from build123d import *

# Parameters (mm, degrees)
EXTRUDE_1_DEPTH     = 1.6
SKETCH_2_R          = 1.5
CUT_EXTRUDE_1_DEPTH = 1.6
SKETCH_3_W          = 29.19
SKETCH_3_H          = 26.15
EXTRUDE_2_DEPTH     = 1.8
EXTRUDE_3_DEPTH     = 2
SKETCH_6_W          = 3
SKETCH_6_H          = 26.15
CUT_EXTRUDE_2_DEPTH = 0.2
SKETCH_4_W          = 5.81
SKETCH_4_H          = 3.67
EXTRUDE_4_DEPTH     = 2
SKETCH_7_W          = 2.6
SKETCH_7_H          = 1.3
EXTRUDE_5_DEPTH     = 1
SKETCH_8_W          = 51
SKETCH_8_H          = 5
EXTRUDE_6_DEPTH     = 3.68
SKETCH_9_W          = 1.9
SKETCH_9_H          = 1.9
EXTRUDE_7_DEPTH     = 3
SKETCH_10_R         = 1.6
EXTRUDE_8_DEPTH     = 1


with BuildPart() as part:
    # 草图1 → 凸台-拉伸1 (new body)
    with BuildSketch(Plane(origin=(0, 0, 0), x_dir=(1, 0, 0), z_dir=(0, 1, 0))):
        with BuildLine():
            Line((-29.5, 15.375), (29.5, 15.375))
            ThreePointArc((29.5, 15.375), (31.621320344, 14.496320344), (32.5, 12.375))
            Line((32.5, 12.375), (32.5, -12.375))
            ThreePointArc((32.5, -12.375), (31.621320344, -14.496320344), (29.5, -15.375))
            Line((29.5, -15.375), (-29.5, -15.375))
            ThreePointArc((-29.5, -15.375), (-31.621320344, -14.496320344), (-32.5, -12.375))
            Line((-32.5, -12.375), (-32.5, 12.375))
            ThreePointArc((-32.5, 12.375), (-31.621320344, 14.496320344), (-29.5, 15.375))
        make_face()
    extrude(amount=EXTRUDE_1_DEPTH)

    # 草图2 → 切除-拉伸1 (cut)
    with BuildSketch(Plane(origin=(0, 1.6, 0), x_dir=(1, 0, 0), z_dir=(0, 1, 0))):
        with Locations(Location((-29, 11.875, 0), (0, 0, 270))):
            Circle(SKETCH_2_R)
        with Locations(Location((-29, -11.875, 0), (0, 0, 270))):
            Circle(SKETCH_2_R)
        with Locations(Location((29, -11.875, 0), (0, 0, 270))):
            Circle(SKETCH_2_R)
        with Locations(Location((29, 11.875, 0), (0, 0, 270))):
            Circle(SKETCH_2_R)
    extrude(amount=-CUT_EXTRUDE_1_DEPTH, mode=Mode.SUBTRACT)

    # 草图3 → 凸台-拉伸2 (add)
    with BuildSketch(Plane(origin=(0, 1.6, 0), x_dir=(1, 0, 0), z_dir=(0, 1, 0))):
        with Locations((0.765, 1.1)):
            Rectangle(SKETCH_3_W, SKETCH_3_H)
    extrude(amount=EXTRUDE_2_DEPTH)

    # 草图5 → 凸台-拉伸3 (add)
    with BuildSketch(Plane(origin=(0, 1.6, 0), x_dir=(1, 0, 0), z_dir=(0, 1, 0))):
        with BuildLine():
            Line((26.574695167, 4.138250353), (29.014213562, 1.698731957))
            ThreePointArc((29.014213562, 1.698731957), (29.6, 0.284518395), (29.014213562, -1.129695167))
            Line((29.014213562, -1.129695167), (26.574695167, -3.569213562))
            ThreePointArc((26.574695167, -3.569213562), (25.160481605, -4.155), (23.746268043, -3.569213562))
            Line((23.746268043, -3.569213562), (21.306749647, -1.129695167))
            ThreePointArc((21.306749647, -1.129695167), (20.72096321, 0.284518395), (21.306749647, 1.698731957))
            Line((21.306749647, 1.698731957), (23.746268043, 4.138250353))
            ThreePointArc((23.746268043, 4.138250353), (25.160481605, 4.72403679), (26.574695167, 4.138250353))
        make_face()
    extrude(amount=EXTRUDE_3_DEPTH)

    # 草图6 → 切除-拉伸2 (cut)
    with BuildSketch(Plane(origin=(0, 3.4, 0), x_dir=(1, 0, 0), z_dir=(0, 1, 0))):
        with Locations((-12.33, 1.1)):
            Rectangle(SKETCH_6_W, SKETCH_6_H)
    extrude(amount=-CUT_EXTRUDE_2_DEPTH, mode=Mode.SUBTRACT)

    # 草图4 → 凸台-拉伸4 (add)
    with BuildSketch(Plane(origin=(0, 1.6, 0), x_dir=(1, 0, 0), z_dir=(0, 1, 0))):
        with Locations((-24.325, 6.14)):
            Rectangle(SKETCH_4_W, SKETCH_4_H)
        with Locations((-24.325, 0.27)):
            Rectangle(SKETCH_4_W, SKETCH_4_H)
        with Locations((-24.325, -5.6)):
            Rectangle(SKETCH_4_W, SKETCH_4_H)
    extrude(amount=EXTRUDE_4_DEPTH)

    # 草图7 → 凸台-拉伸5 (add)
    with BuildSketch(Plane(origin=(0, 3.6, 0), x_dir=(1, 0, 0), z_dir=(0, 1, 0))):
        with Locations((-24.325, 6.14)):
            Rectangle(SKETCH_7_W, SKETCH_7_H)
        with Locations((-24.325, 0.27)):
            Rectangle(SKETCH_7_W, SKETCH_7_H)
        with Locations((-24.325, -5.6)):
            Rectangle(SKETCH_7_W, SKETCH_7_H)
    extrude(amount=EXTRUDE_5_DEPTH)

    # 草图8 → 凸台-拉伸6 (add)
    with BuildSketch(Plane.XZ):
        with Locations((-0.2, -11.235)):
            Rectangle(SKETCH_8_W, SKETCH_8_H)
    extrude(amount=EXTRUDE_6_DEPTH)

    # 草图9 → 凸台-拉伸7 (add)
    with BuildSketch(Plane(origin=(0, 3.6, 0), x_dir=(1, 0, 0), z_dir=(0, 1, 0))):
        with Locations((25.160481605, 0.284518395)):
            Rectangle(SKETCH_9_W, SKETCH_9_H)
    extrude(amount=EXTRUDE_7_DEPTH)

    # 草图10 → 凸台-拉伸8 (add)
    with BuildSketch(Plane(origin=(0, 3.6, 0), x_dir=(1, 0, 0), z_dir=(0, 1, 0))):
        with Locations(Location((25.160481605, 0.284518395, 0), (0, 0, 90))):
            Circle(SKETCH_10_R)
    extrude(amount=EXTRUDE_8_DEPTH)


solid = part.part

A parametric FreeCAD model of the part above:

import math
import FreeCAD as App
import Part
import Sketcher

doc = App.newDocument("Part")
params = doc.addObject("Spreadsheet::Sheet", "Params")
for row, (alias, value) in enumerate([
    ("sketch1_radius", "3 mm"),
    ("sketch1_width", "59 mm"),
    ("sketch1_height", "24.75 mm"),
    ("pad1_length", "1.6 mm"),
    ("sketch2_diameter", "3 mm"),
    ("pocket1_length", "1.6 mm"),
    ("sketch3_width", "29.19 mm"),
    ("sketch3_height", "26.15 mm"),
    ("pad2_length", "1.8 mm"),
    ("sketch4_radius", "2 mm"),
    ("sketch4_length", "3.45 mm"),
    ("pad3_length", "2 mm"),
    ("sketch5_width", "3 mm"),
    ("sketch5_height", "26.15 mm"),
    ("pocket2_length", "0.2 mm"),
    ("sketch6_width", "5.81 mm"),
    ("sketch6_height", "3.67 mm"),
    ("pad4_length", "2 mm"),
    ("sketch7_width", "2.6 mm"),
    ("sketch7_height", "1.3 mm"),
    ("pad5_length", "1 mm"),
    ("sketch8_width", "51 mm"),
    ("sketch8_height", "5 mm"),
    ("pad6_length", "3.68 mm"),
    ("sketch9_width", "1.9 mm"),
    ("pad7_length", "3 mm"),
    ("sketch10_diameter", "3.2 mm"),
    ("pad8_length", "1 mm"),
], start=1):
    params.set(f"A{row}", alias)
    params.set(f"B{row}", "=" + value)
    params.setAlias(f"B{row}", alias)

body = doc.addObject("PartDesign::Body", "Body")

# Sketch on XZ plane
sketch1 = body.newObject("Sketcher::SketchObject", "Sketch")
sketch1.AttachmentSupport = (doc.getObject("XZ_Plane"), [""])
sketch1.MapMode = "FlatFace"
sketch1.addGeometry([
    Part.LineSegment(App.Vector(29.5, -15.4, 0), App.Vector(-29.5, -15.4, 0)),  # 0
    Part.ArcOfCircle(Part.Circle(App.Vector(-29.5, -12.4, 0), App.Vector(0, 0, 1), 3), math.radians(180), math.radians(270)),  # 1
    Part.LineSegment(App.Vector(-32.5, -12.4, 0), App.Vector(-32.5, 12.4, 0)),  # 2
    Part.ArcOfCircle(Part.Circle(App.Vector(-29.5, 12.4, 0), App.Vector(0, 0, 1), 3), math.radians(90), math.radians(180)),  # 3
    Part.LineSegment(App.Vector(-29.5, 15.4, 0), App.Vector(29.5, 15.4, 0)),  # 4
    Part.ArcOfCircle(Part.Circle(App.Vector(29.5, 12.4, 0), App.Vector(0, 0, 1), 3), math.radians(0), math.radians(90)),  # 5
    Part.LineSegment(App.Vector(32.5, 12.4, 0), App.Vector(32.5, -12.4, 0)),  # 6
    Part.ArcOfCircle(Part.Circle(App.Vector(29.5, -12.4, 0), App.Vector(0, 0, 1), 3), math.radians(-90), math.radians(0)),  # 7
], False)
sketch1.addConstraint([
    Sketcher.Constraint("Tangent", 0, 2, 1, 2),
    Sketcher.Constraint("Tangent", 1, 1, 2, 1),
    Sketcher.Constraint("Tangent", 2, 2, 3, 2),
    Sketcher.Constraint("Tangent", 3, 1, 4, 1),
    Sketcher.Constraint("Tangent", 4, 2, 5, 2),
    Sketcher.Constraint("Tangent", 5, 1, 6, 1),
    Sketcher.Constraint("Tangent", 6, 2, 7, 2),
    Sketcher.Constraint("Tangent", 7, 1, 0, 1),
    Sketcher.Constraint("Horizontal", 0),
    Sketcher.Constraint("Vertical", 2),
    Sketcher.Constraint("Horizontal", 4),
    Sketcher.Constraint("Vertical", 6),
    Sketcher.Constraint("Equal", 1, 3),
    Sketcher.Constraint("Equal", 3, 5),
    Sketcher.Constraint("Equal", 5, 7),
    Sketcher.Constraint("Symmetric", 1, 3, 5, 3, -1, 1),
    Sketcher.Constraint("Radius", 1, 3.0),
    Sketcher.Constraint("DistanceX", 0, 2, 0, 1, 59.0),
    Sketcher.Constraint("DistanceY", 2, 1, 2, 2, 24.75),
])
sketch1.setExpression("Constraints[16]", "Params.sketch1_radius")
sketch1.setExpression("Constraints[17]", "Params.sketch1_width")
sketch1.setExpression("Constraints[18]", "Params.sketch1_height")
pad1 = body.newObject("PartDesign::Pad", "Pad")
pad1.Profile = sketch1
pad1.setExpression("Length", "Params.pad1_length")
pad1.Reversed = True

# Sketch on XZ plane
sketch2 = body.newObject("Sketcher::SketchObject", "Sketch001")
sketch2.AttachmentSupport = (doc.getObject("XZ_Plane"), [""])
sketch2.MapMode = "FlatFace"
sketch2.AttachmentOffset = App.Placement(App.Vector(0, 0, -1.6), App.Rotation())
sketch2.addGeometry([
    Part.Circle(App.Vector(-29, -11.9, 0), App.Vector(0, 0, 1), 1.5),
    Part.Circle(App.Vector(-29, 11.9, 0), App.Vector(0, 0, 1), 1.5),
    Part.Circle(App.Vector(29, 11.9, 0), App.Vector(0, 0, 1), 1.5),
    Part.Circle(App.Vector(29, -11.9, 0), App.Vector(0, 0, 1), 1.5),
], False)
sketch2.addConstraint([
    Sketcher.Constraint("Equal", 0, 1),
    Sketcher.Constraint("Equal", 1, 2),
    Sketcher.Constraint("Equal", 2, 3),
    Sketcher.Constraint("Symmetric", 0, 3, 2, 3, -1, 1),
    Sketcher.Constraint("Symmetric", 1, 3, 3, 3, -1, 1),
    Sketcher.Constraint("Symmetric", 1, 3, 2, 3, -2),
    Sketcher.Constraint("Diameter", 0, 3.0),
    Sketcher.Constraint("DistanceX", 0, 3, -1, 1, 29.0),
    Sketcher.Constraint("DistanceY", 0, 3, 1, 3, 23.75),
])
sketch2.setExpression("Constraints[6]", "Params.sketch2_diameter")
pocket1 = body.newObject("PartDesign::Pocket", "Pocket")
pocket1.Profile = sketch2
pocket1.setExpression("Length", "Params.pocket1_length")
pocket1.Reversed = True

# Sketch on XZ plane
sketch3 = body.newObject("Sketcher::SketchObject", "Sketch002")
sketch3.AttachmentSupport = (doc.getObject("XZ_Plane"), [""])
sketch3.MapMode = "FlatFace"
sketch3.AttachmentOffset = App.Placement(App.Vector(0, 0, -1.6), App.Rotation())
sketch3.addGeometry([
    Part.LineSegment(App.Vector(-14, -14, 0), App.Vector(-14, 12, 0)),
    Part.LineSegment(App.Vector(-14, 12, 0), App.Vector(15, 12, 0)),
    Part.LineSegment(App.Vector(15, 12, 0), App.Vector(15, -14, 0)),
    Part.LineSegment(App.Vector(15, -14, 0), App.Vector(-14, -14, 0)),
], False)
sketch3.addConstraint([
    Sketcher.Constraint("Coincident", 0, 2, 1, 1),
    Sketcher.Constraint("Coincident", 1, 2, 2, 1),
    Sketcher.Constraint("Coincident", 2, 2, 3, 1),
    Sketcher.Constraint("Coincident", 3, 2, 0, 1),
    Sketcher.Constraint("Vertical", 0),
    Sketcher.Constraint("Horizontal", 1),
    Sketcher.Constraint("Vertical", 2),
    Sketcher.Constraint("Horizontal", 3),
    Sketcher.Constraint("DistanceX", 1, 1, 1, 2, 29.19),
    Sketcher.Constraint("DistanceY", 0, 1, 0, 2, 26.15),
    Sketcher.Constraint("DistanceX", 0, 2, -1, 1, 13.83),
    Sketcher.Constraint("DistanceY", -1, 1, 0, 2, 11.975),
])
sketch3.setExpression("Constraints[8]", "Params.sketch3_width")
sketch3.setExpression("Constraints[9]", "Params.sketch3_height")
pad2 = body.newObject("PartDesign::Pad", "Pad001")
pad2.Profile = sketch3
pad2.setExpression("Length", "Params.pad2_length")
pad2.Reversed = True

# Sketch on XZ plane
sketch4 = body.newObject("Sketcher::SketchObject", "Sketch003")
sketch4.AttachmentSupport = (doc.getObject("XZ_Plane"), [""])
sketch4.MapMode = "FlatFace"
sketch4.AttachmentOffset = App.Placement(App.Vector(0, 0, -1.6), App.Rotation())
sketch4.addGeometry([
    Part.LineSegment(App.Vector(29, -1.7, 0), App.Vector(26.6, -4.1, 0)),  # 0
    Part.ArcOfCircle(Part.Circle(App.Vector(25.2, -2.7, 0), App.Vector(0, 0, 1), 2), math.radians(-135), math.radians(-45)),  # 1
    Part.LineSegment(App.Vector(23.7, -4.1, 0), App.Vector(21.3, -1.7, 0)),  # 2
    Part.ArcOfCircle(Part.Circle(App.Vector(22.7, -0.3, 0), App.Vector(0, 0, 1), 2), math.radians(135), math.radians(225)),  # 3
    Part.LineSegment(App.Vector(21.3, 1.1, 0), App.Vector(23.7, 3.6, 0)),  # 4
    Part.ArcOfCircle(Part.Circle(App.Vector(25.2, 2.2, 0), App.Vector(0, 0, 1), 2), math.radians(45), math.radians(135)),  # 5
    Part.LineSegment(App.Vector(26.6, 3.6, 0), App.Vector(29, 1.1, 0)),  # 6
    Part.ArcOfCircle(Part.Circle(App.Vector(27.6, -0.3, 0), App.Vector(0, 0, 1), 2), math.radians(-45), math.radians(45)),  # 7
], False)
sketch4.addConstraint([
    Sketcher.Constraint("Tangent", 0, 2, 1, 2),
    Sketcher.Constraint("Tangent", 1, 1, 2, 1),
    Sketcher.Constraint("Tangent", 2, 2, 3, 2),
    Sketcher.Constraint("Tangent", 3, 1, 4, 1),
    Sketcher.Constraint("Tangent", 4, 2, 5, 2),
    Sketcher.Constraint("Tangent", 5, 1, 6, 1),
    Sketcher.Constraint("Tangent", 6, 2, 7, 2),
    Sketcher.Constraint("Tangent", 7, 1, 0, 1),
    Sketcher.Constraint("Equal", 1, 3),
    Sketcher.Constraint("Equal", 3, 5),
    Sketcher.Constraint("Equal", 5, 7),
    Sketcher.Constraint("Perpendicular", 0, 2),
    Sketcher.Constraint("Perpendicular", 2, 4),
    Sketcher.Constraint("Perpendicular", 4, 6),
    Sketcher.Constraint("Horizontal", 3, 3, 7, 3),
    Sketcher.Constraint("Horizontal", 0, 2, 1, 1),
    Sketcher.Constraint("Radius", 1, 2.0),
    Sketcher.Constraint("DistanceX", -1, 1, 7, 3, 27.6),
    Sketcher.Constraint("Distance", 0, 3.45),
    Sketcher.Constraint("DistanceY", -1, 1, 5, 3, 2.155),
])
sketch4.setExpression("Constraints[16]", "Params.sketch4_radius")
sketch4.setExpression("Constraints[18]", "Params.sketch4_length")
pad3 = body.newObject("PartDesign::Pad", "Pad002")
pad3.Profile = sketch4
pad3.setExpression("Length", "Params.pad3_length")
pad3.Reversed = True

# Sketch on XZ plane
sketch5 = body.newObject("Sketcher::SketchObject", "Sketch004")
sketch5.AttachmentSupport = (doc.getObject("XZ_Plane"), [""])
sketch5.MapMode = "FlatFace"
sketch5.AttachmentOffset = App.Placement(App.Vector(0, 0, -3.4), App.Rotation())
sketch5.addGeometry([
    Part.LineSegment(App.Vector(-13.8, -14.2, 0), App.Vector(-13.8, 12, 0)),
    Part.LineSegment(App.Vector(-13.8, 12, 0), App.Vector(-10.8, 12, 0)),
    Part.LineSegment(App.Vector(-10.8, 12, 0), App.Vector(-10.8, -14.2, 0)),
    Part.LineSegment(App.Vector(-10.8, -14.2, 0), App.Vector(-13.8, -14.2, 0)),
], False)
sketch5.addConstraint([
    Sketcher.Constraint("Coincident", 0, 2, 1, 1),
    Sketcher.Constraint("Coincident", 1, 2, 2, 1),
    Sketcher.Constraint("Coincident", 2, 2, 3, 1),
    Sketcher.Constraint("Coincident", 3, 2, 0, 1),
    Sketcher.Constraint("Vertical", 0),
    Sketcher.Constraint("Horizontal", 1),
    Sketcher.Constraint("Vertical", 2),
    Sketcher.Constraint("Horizontal", 3),
    Sketcher.Constraint("DistanceX", 1, 1, 1, 2, 3.0),
    Sketcher.Constraint("DistanceY", 0, 1, 0, 2, 26.15),
    Sketcher.Constraint("DistanceX", 0, 2, -1, 1, 13.83),
    Sketcher.Constraint("DistanceY", -1, 1, 0, 2, 11.975),
])
sketch5.setExpression("Constraints[8]", "Params.sketch5_width")
sketch5.setExpression("Constraints[9]", "Params.sketch5_height")
pocket2 = body.newObject("PartDesign::Pocket", "Pocket001")
pocket2.Profile = sketch5
pocket2.setExpression("Length", "Params.pocket2_length")
pocket2.Reversed = True

# Sketch on XZ plane
sketch6 = body.newObject("Sketcher::SketchObject", "Sketch005")
sketch6.AttachmentSupport = (doc.getObject("XZ_Plane"), [""])
sketch6.MapMode = "FlatFace"
sketch6.AttachmentOffset = App.Placement(App.Vector(0, 0, -1.6), App.Rotation())
sketch6.addGeometry([
    Part.LineSegment(App.Vector(-27.2, -8, 0), App.Vector(-27.2, -4.3, 0)),  # 0
    Part.LineSegment(App.Vector(-27.2, -4.3, 0), App.Vector(-21.4, -4.3, 0)),  # 1
    Part.LineSegment(App.Vector(-21.4, -4.3, 0), App.Vector(-21.4, -8, 0)),  # 2
    Part.LineSegment(App.Vector(-21.4, -8, 0), App.Vector(-27.2, -8, 0)),  # 3
    Part.LineSegment(App.Vector(-27.2, -2.1, 0), App.Vector(-27.2, 1.6, 0)),  # 4
    Part.LineSegment(App.Vector(-27.2, 1.6, 0), App.Vector(-21.4, 1.6, 0)),  # 5
    Part.LineSegment(App.Vector(-21.4, 1.6, 0), App.Vector(-21.4, -2.1, 0)),  # 6
    Part.LineSegment(App.Vector(-21.4, -2.1, 0), App.Vector(-27.2, -2.1, 0)),  # 7
    Part.LineSegment(App.Vector(-27.2, 3.8, 0), App.Vector(-27.2, 7.4, 0)),  # 8
    Part.LineSegment(App.Vector(-27.2, 7.4, 0), App.Vector(-21.4, 7.4, 0)),  # 9
    Part.LineSegment(App.Vector(-21.4, 7.4, 0), App.Vector(-21.4, 3.8, 0)),  # 10
    Part.LineSegment(App.Vector(-21.4, 3.8, 0), App.Vector(-27.2, 3.8, 0)),  # 11
], False)
sketch6.addConstraint([
    Sketcher.Constraint("Coincident", 0, 2, 1, 1),
    Sketcher.Constraint("Coincident", 1, 2, 2, 1),
    Sketcher.Constraint("Coincident", 2, 2, 3, 1),
    Sketcher.Constraint("Coincident", 3, 2, 0, 1),
    Sketcher.Constraint("Coincident", 4, 2, 5, 1),
    Sketcher.Constraint("Coincident", 5, 2, 6, 1),
    Sketcher.Constraint("Coincident", 6, 2, 7, 1),
    Sketcher.Constraint("Coincident", 7, 2, 4, 1),
    Sketcher.Constraint("Coincident", 8, 2, 9, 1),
    Sketcher.Constraint("Coincident", 9, 2, 10, 1),
    Sketcher.Constraint("Coincident", 10, 2, 11, 1),
    Sketcher.Constraint("Coincident", 11, 2, 8, 1),
    Sketcher.Constraint("Vertical", 0),
    Sketcher.Constraint("Horizontal", 1),
    Sketcher.Constraint("Vertical", 2),
    Sketcher.Constraint("Horizontal", 3),
    Sketcher.Constraint("Vertical", 4),
    Sketcher.Constraint("Horizontal", 5),
    Sketcher.Constraint("Vertical", 6),
    Sketcher.Constraint("Horizontal", 7),
    Sketcher.Constraint("Vertical", 8),
    Sketcher.Constraint("Horizontal", 9),
    Sketcher.Constraint("Vertical", 10),
    Sketcher.Constraint("Horizontal", 11),
    Sketcher.Constraint("Vertical", 3, 2, 4, 2),
    Sketcher.Constraint("Vertical", 2, 2, 5, 2),
    Sketcher.Constraint("Vertical", 7, 2, 8, 2),
    Sketcher.Constraint("Vertical", 6, 2, 9, 2),
    Sketcher.Constraint("Equal", 2, 4),
    Sketcher.Constraint("Equal", 6, 8),
    Sketcher.Constraint("DistanceX", 1, 1, 1, 2, 5.81),
    Sketcher.Constraint("DistanceY", 0, 1, 0, 2, 3.67),
    Sketcher.Constraint("DistanceY", 1, 2, 6, 2, 2.2),
    Sketcher.Constraint("DistanceY", 5, 2, 10, 2, 2.2),
    Sketcher.Constraint("DistanceX", 0, 2, -1, 1, 27.23),
    Sketcher.Constraint("DistanceY", 0, 2, -1, 1, 4.305),
])
sketch6.setExpression("Constraints[30]", "Params.sketch6_width")
sketch6.setExpression("Constraints[31]", "Params.sketch6_height")
pad4 = body.newObject("PartDesign::Pad", "Pad003")
pad4.Profile = sketch6
pad4.setExpression("Length", "Params.pad4_length")
pad4.Reversed = True

# Sketch on XZ plane
sketch7 = body.newObject("Sketcher::SketchObject", "Sketch006")
sketch7.AttachmentSupport = (doc.getObject("XZ_Plane"), [""])
sketch7.MapMode = "FlatFace"
sketch7.AttachmentOffset = App.Placement(App.Vector(0, 0, -3.6), App.Rotation())
sketch7.addGeometry([
    Part.LineSegment(App.Vector(-25.6, -6.8, 0), App.Vector(-25.6, -5.5, 0)),  # 0
    Part.LineSegment(App.Vector(-25.6, -5.5, 0), App.Vector(-23, -5.5, 0)),  # 1
    Part.LineSegment(App.Vector(-23, -5.5, 0), App.Vector(-23, -6.8, 0)),  # 2
    Part.LineSegment(App.Vector(-23, -6.8, 0), App.Vector(-25.6, -6.8, 0)),  # 3
    Part.LineSegment(App.Vector(-25.6, -0.9, 0), App.Vector(-25.6, 0.4, 0)),  # 4
    Part.LineSegment(App.Vector(-25.6, 0.4, 0), App.Vector(-23, 0.4, 0)),  # 5
    Part.LineSegment(App.Vector(-23, 0.4, 0), App.Vector(-23, -0.9, 0)),  # 6
    Part.LineSegment(App.Vector(-23, -0.9, 0), App.Vector(-25.6, -0.9, 0)),  # 7
    Part.LineSegment(App.Vector(-25.6, 5, 0), App.Vector(-25.6, 6.2, 0)),  # 8
    Part.LineSegment(App.Vector(-25.6, 6.2, 0), App.Vector(-23, 6.2, 0)),  # 9
    Part.LineSegment(App.Vector(-23, 6.2, 0), App.Vector(-23, 5, 0)),  # 10
    Part.LineSegment(App.Vector(-23, 5, 0), App.Vector(-25.6, 5, 0)),  # 11
], False)
sketch7.addConstraint([
    Sketcher.Constraint("Coincident", 0, 2, 1, 1),
    Sketcher.Constraint("Coincident", 1, 2, 2, 1),
    Sketcher.Constraint("Coincident", 2, 2, 3, 1),
    Sketcher.Constraint("Coincident", 3, 2, 0, 1),
    Sketcher.Constraint("Coincident", 4, 2, 5, 1),
    Sketcher.Constraint("Coincident", 5, 2, 6, 1),
    Sketcher.Constraint("Coincident", 6, 2, 7, 1),
    Sketcher.Constraint("Coincident", 7, 2, 4, 1),
    Sketcher.Constraint("Coincident", 8, 2, 9, 1),
    Sketcher.Constraint("Coincident", 9, 2, 10, 1),
    Sketcher.Constraint("Coincident", 10, 2, 11, 1),
    Sketcher.Constraint("Coincident", 11, 2, 8, 1),
    Sketcher.Constraint("Vertical", 0),
    Sketcher.Constraint("Horizontal", 1),
    Sketcher.Constraint("Vertical", 2),
    Sketcher.Constraint("Horizontal", 3),
    Sketcher.Constraint("Vertical", 4),
    Sketcher.Constraint("Horizontal", 5),
    Sketcher.Constraint("Vertical", 6),
    Sketcher.Constraint("Horizontal", 7),
    Sketcher.Constraint("Vertical", 8),
    Sketcher.Constraint("Horizontal", 9),
    Sketcher.Constraint("Vertical", 10),
    Sketcher.Constraint("Horizontal", 11),
    Sketcher.Constraint("Vertical", 3, 2, 4, 2),
    Sketcher.Constraint("Vertical", 2, 2, 5, 2),
    Sketcher.Constraint("Vertical", 7, 2, 8, 2),
    Sketcher.Constraint("Vertical", 6, 2, 9, 2),
    Sketcher.Constraint("Equal", 2, 4),
    Sketcher.Constraint("Equal", 6, 8),
    Sketcher.Constraint("DistanceX", 1, 1, 1, 2, 2.6),
    Sketcher.Constraint("DistanceY", 0, 1, 0, 2, 1.3),
    Sketcher.Constraint("DistanceY", 0, 2, -1, 1, 5.49),
    Sketcher.Constraint("DistanceY", -1, 1, 4, 2, 0.38),
    Sketcher.Constraint("DistanceY", -1, 1, 8, 2, 6.25),
    Sketcher.Constraint("DistanceX", 0, 2, -1, 1, 25.625),
])
sketch7.setExpression("Constraints[30]", "Params.sketch7_width")
sketch7.setExpression("Constraints[31]", "Params.sketch7_height")
pad5 = body.newObject("PartDesign::Pad", "Pad004")
pad5.Profile = sketch7
pad5.setExpression("Length", "Params.pad5_length")
pad5.Reversed = True

# Sketch on XZ plane
sketch8 = body.newObject("Sketcher::SketchObject", "Sketch007")
sketch8.AttachmentSupport = (doc.getObject("XZ_Plane"), [""])
sketch8.MapMode = "FlatFace"
sketch8.addGeometry([
    Part.LineSegment(App.Vector(-26, -9, 0), App.Vector(-26, -14, 0)),
    Part.LineSegment(App.Vector(-26, -14, 0), App.Vector(25, -14, 0)),
    Part.LineSegment(App.Vector(25, -14, 0), App.Vector(25, -9, 0)),
    Part.LineSegment(App.Vector(25, -9, 0), App.Vector(-26, -9, 0)),
], False)
sketch8.addConstraint([
    Sketcher.Constraint("Coincident", 0, 2, 1, 1),
    Sketcher.Constraint("Coincident", 1, 2, 2, 1),
    Sketcher.Constraint("Coincident", 2, 2, 3, 1),
    Sketcher.Constraint("Coincident", 3, 2, 0, 1),
    Sketcher.Constraint("Vertical", 0),
    Sketcher.Constraint("Horizontal", 1),
    Sketcher.Constraint("Vertical", 2),
    Sketcher.Constraint("Horizontal", 3),
    Sketcher.Constraint("DistanceX", 1, 1, 1, 2, 51.0),
    Sketcher.Constraint("DistanceY", 0, 2, 0, 1, 5.0),
    Sketcher.Constraint("DistanceX", 0, 2, -1, 1, 25.7),
    Sketcher.Constraint("DistanceY", 0, 2, -1, 1, 13.735),
])
sketch8.setExpression("Constraints[8]", "Params.sketch8_width")
sketch8.setExpression("Constraints[9]", "Params.sketch8_height")
pad6 = body.newObject("PartDesign::Pad", "Pad005")
pad6.Profile = sketch8
pad6.setExpression("Length", "Params.pad6_length")

# Sketch on XZ plane
sketch9 = body.newObject("Sketcher::SketchObject", "Sketch008")
sketch9.AttachmentSupport = (doc.getObject("XZ_Plane"), [""])
sketch9.MapMode = "FlatFace"
sketch9.AttachmentOffset = App.Placement(App.Vector(0, 0, -3.6), App.Rotation())
sketch9.addGeometry([
    Part.LineSegment(App.Vector(24.2, -1.2, 0), App.Vector(24.2, 0.7, 0)),
    Part.LineSegment(App.Vector(24.2, 0.7, 0), App.Vector(26.1, 0.7, 0)),
    Part.LineSegment(App.Vector(26.1, 0.7, 0), App.Vector(26.1, -1.2, 0)),
    Part.LineSegment(App.Vector(26.1, -1.2, 0), App.Vector(24.2, -1.2, 0)),
], False)
sketch9.addConstraint([
    Sketcher.Constraint("Coincident", 0, 2, 1, 1),
    Sketcher.Constraint("Coincident", 1, 2, 2, 1),
    Sketcher.Constraint("Coincident", 2, 2, 3, 1),
    Sketcher.Constraint("Coincident", 3, 2, 0, 1),
    Sketcher.Constraint("Vertical", 0),
    Sketcher.Constraint("Horizontal", 1),
    Sketcher.Constraint("Vertical", 2),
    Sketcher.Constraint("Horizontal", 3),
    Sketcher.Constraint("Equal", 3, 0),
    Sketcher.Constraint("DistanceX", 1, 1, 1, 2, 1.9),
    Sketcher.Constraint("DistanceX", -1, 1, 0, 2, 24.210482),
    Sketcher.Constraint("DistanceY", -1, 1, 0, 2, 0.665482),
])
sketch9.setExpression("Constraints[9]", "Params.sketch9_width")
pad7 = body.newObject("PartDesign::Pad", "Pad006")
pad7.Profile = sketch9
pad7.setExpression("Length", "Params.pad7_length")
pad7.Reversed = True

# Sketch on XZ plane
sketch10 = body.newObject("Sketcher::SketchObject", "Sketch009")
sketch10.AttachmentSupport = (doc.getObject("XZ_Plane"), [""])
sketch10.MapMode = "FlatFace"
sketch10.AttachmentOffset = App.Placement(App.Vector(0, 0, -3.6), App.Rotation())
sketch10.addGeometry(Part.Circle(App.Vector(25.2, -0.3, 0), App.Vector(0, 0, 1), 1.6), False)
sketch10.addConstraint([
    Sketcher.Constraint("Diameter", 0, 3.2),
    Sketcher.Constraint("DistanceX", -1, 1, 0, 3, 25.160482),
    Sketcher.Constraint("DistanceY", 0, 3, -1, 1, 0.284518),
])
sketch10.setExpression("Constraints[0]", "Params.sketch10_diameter")
pad8 = body.newObject("PartDesign::Pad", "Pad007")
pad8.Profile = sketch10
pad8.setExpression("Length", "Params.pad8_length")
pad8.Reversed = True

doc.recompute()
